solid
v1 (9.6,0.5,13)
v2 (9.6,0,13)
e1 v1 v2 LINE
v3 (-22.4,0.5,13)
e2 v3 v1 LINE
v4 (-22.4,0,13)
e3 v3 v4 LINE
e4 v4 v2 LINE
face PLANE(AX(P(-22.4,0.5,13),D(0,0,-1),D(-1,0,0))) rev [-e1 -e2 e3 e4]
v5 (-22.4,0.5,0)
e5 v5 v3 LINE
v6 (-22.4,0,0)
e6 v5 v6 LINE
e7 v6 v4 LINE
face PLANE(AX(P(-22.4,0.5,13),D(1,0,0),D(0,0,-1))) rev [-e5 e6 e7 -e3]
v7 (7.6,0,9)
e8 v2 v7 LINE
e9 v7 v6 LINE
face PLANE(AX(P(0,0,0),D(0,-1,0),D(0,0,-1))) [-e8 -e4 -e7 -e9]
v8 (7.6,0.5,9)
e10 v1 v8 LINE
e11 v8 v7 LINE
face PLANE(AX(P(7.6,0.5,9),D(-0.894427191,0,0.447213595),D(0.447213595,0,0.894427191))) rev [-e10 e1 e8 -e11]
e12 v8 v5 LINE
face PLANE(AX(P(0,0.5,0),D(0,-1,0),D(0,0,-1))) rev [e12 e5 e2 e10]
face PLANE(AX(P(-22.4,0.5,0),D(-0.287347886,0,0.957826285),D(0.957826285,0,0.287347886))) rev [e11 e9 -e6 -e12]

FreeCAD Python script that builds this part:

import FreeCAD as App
import Part
import Sketcher
from FreeCAD import Vector
Q = App.Units.Quantity

doc = App.newDocument("Part")
params = doc.addObject("Spreadsheet::Sheet", "Params")
for row, (alias, value) in enumerate([
    ("sketch1_width", "32 mm"),
    ("sketch1_height", "13 mm"),
    ("pad1_length", "0.5 mm"),
], start=1):
    params.set(f"A{row}", alias)
    params.set(f"B{row}", "=" + value)
    params.setAlias(f"B{row}", alias)

body = doc.addObject("PartDesign::Body", "Body")

# Sketch on XZ plane
sketch1 = body.newObject("Sketcher::SketchObject", "Sketch")
sketch1.AttachmentSupport = (doc.getObject("XZ_Plane"), [""])
sketch1.MapMode = "FlatFace"
sketch1.addGeometry(Part.LineSegment(Vector(-22.4, 13, 0), Vector(9.6, 13, 0)), False)
sketch1.addGeometry(Part.LineSegment(Vector(9.6, 13, 0), Vector(7.6, 9, 0)), False)
sketch1.addGeometry(Part.LineSegment(Vector(7.6, 9, 0), Vector(-22.4, 0, 0)), False)
sketch1.addGeometry(Part.LineSegment(Vector(-22.4, 0, 0), Vector(-22.4, 13, 0)), False)
sketch1.addConstraint(Sketcher.Constraint("Coincident", 0, 2, 1, 1))
sketch1.addConstraint(Sketcher.Constraint("Coincident", 1, 2, 2, 1))
sketch1.addConstraint(Sketcher.Constraint("Coincident", 2, 2, 3, 1))
sketch1.addConstraint(Sketcher.Constraint("Coincident", 3, 2, 0, 1))
sketch1.addConstraint(Sketcher.Constraint("Horizontal", 0))
sketch1.addConstraint(Sketcher.Constraint("Vertical", 3))
sketch1.addConstraint(Sketcher.Constraint("PointOnObject", 2, 2, -1))
sketch1.addConstraint(Sketcher.Constraint("DistanceX", 0, 1, 0, 2, Q("32 mm")))
sketch1.addConstraint(Sketcher.Constraint("DistanceY", 3, 1, 3, 2, Q("13 mm")))
sketch1.addConstraint(Sketcher.Constraint("DistanceY", -1, 1, 1, 2, Q("9 mm")))
sketch1.addConstraint(Sketcher.Constraint("DistanceX", 1, 2, 0, 2, Q("2 mm")))
sketch1.addConstraint(Sketcher.Constraint("DistanceX", -1, 1, 0, 2, Q("9.6 mm")))
sketch1.setExpression("Constraints[7]", "Params.sketch1_width")
sketch1.setExpression("Constraints[8]", "Params.sketch1_height")
pad1 = body.newObject("PartDesign::Pad", "Pad")
pad1.Profile = sketch1
pad1.setExpression("Length", "Params.pad1_length")
pad1.Reversed = True

doc.recompute()
